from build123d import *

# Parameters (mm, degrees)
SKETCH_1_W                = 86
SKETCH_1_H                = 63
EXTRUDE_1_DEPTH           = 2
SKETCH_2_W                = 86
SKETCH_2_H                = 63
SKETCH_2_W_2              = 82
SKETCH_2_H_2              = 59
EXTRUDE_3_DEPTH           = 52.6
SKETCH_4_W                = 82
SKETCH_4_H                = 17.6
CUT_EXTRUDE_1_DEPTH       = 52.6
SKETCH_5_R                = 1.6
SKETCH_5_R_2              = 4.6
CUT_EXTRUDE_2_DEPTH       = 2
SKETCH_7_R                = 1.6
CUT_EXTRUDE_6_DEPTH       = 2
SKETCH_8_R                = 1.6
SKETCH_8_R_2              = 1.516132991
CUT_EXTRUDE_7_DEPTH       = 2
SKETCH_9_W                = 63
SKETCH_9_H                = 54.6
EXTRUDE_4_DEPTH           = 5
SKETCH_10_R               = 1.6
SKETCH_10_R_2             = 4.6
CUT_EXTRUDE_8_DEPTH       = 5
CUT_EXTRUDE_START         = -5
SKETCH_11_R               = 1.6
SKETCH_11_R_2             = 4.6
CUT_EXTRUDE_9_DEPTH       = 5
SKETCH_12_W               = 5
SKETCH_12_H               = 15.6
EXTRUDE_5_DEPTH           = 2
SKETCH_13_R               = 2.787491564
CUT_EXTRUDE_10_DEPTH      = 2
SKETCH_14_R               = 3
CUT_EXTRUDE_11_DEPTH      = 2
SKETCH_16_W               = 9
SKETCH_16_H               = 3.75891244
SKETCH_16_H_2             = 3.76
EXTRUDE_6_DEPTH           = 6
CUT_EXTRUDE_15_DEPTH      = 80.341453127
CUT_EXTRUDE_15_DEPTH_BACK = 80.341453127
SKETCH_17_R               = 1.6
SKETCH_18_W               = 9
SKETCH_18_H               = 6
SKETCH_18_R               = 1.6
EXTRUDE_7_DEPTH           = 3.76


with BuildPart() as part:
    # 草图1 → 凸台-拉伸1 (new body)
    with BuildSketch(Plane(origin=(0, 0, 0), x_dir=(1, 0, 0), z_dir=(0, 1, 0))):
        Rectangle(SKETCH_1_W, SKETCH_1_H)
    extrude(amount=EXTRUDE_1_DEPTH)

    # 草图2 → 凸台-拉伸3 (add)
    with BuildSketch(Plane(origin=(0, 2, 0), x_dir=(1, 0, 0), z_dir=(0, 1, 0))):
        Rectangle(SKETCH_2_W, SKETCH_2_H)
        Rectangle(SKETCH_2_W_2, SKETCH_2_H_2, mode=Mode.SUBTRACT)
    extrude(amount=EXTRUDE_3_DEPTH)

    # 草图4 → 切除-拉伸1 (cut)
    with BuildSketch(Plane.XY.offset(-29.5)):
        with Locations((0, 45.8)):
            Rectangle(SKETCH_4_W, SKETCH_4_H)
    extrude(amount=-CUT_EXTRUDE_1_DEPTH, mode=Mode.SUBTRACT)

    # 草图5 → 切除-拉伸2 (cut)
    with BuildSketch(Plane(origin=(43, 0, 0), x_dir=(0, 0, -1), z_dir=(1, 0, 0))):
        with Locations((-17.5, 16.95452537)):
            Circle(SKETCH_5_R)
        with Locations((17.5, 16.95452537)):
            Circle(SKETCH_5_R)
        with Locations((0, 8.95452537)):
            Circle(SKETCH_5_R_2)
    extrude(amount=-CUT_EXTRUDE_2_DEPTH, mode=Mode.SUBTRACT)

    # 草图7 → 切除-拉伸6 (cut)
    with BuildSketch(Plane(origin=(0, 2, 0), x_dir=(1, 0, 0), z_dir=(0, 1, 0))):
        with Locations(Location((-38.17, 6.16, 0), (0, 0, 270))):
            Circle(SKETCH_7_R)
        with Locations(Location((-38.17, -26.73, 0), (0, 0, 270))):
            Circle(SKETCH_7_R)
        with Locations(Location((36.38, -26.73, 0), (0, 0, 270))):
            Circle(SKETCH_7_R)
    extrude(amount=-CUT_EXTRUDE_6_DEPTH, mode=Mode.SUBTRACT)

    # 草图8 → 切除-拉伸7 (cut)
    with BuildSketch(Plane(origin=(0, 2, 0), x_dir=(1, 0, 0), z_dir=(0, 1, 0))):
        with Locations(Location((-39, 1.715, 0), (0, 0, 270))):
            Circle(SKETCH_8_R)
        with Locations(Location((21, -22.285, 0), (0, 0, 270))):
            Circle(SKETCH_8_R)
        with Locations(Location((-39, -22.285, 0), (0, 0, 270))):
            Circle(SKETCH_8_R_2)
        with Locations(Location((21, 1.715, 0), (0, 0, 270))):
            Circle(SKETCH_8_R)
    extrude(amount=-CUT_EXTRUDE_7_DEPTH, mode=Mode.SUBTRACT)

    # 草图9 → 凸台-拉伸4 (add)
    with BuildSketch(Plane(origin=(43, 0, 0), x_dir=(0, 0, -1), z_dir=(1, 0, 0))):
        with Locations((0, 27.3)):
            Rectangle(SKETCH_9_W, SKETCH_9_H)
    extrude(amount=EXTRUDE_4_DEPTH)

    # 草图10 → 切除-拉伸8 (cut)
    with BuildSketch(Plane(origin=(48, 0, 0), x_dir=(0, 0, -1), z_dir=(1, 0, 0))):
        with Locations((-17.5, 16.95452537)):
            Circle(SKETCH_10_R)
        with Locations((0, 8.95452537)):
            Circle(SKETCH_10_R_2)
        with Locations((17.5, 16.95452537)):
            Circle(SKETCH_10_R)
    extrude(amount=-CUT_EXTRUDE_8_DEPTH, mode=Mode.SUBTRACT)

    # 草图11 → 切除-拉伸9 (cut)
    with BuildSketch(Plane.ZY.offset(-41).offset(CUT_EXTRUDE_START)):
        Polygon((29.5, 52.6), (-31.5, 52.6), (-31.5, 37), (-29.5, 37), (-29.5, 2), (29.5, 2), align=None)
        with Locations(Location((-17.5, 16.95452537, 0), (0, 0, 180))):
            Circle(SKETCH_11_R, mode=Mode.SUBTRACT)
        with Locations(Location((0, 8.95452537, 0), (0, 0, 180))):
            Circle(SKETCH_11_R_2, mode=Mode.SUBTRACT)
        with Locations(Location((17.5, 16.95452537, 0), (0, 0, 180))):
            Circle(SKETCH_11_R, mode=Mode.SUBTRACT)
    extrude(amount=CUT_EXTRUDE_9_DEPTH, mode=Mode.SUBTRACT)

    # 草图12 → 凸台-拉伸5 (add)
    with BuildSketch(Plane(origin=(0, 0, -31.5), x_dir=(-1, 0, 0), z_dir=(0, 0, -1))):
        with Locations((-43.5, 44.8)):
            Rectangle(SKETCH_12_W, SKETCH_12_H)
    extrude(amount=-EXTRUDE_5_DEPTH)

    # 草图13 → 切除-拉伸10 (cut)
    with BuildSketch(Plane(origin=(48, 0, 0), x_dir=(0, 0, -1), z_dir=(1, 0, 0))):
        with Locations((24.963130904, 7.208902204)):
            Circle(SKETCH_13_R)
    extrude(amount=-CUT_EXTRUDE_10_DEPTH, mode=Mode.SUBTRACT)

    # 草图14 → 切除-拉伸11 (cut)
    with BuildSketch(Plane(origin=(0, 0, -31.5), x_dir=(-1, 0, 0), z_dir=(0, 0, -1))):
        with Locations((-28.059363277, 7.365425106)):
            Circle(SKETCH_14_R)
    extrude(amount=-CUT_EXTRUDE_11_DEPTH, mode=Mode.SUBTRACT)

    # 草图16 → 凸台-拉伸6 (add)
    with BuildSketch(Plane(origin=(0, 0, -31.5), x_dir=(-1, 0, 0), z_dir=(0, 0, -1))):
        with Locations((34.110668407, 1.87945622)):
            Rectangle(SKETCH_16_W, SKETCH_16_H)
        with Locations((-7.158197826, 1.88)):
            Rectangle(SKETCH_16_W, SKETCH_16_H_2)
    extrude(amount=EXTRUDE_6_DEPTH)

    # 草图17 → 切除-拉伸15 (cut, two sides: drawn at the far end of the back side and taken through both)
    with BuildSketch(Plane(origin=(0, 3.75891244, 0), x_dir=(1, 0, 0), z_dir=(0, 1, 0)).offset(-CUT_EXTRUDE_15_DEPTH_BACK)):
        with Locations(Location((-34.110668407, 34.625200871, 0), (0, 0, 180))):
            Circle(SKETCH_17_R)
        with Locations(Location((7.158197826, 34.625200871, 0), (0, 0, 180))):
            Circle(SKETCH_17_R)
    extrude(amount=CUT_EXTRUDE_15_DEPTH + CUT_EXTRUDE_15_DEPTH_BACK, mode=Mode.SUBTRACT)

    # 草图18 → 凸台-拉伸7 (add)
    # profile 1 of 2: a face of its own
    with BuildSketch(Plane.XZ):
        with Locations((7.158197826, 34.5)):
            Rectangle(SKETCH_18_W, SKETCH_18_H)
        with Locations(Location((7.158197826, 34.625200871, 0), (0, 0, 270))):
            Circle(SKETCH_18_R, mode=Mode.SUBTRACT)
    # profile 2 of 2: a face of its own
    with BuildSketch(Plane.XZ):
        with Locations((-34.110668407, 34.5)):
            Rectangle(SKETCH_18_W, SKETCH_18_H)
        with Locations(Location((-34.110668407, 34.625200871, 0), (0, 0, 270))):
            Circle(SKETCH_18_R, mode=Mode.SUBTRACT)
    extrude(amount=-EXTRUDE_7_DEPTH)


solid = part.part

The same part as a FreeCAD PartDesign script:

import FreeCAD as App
import Part
import Sketcher

doc = App.newDocument("Part")
params = doc.addObject("Spreadsheet::Sheet", "Params")
for row, (alias, value) in enumerate([
    ("sketch1_width", "86 mm"),
    ("sketch1_height", "63 mm"),
    ("pad1_length", "2 mm"),
    ("sketch2_width", "86 mm"),
    ("sketch2_width2", "82 mm"),
    ("sketch2_height", "63 mm"),
    ("sketch2_height2", "59 mm"),
    ("pad2_length", "52.6 mm"),
    ("sketch3_width", "82 mm"),
    ("sketch3_height", "17.6 mm"),
    ("pocket1_length", "52.6 mm"),
    ("sketch4_diameter", "3.2 mm"),
    ("sketch4_diameter2", "9.2 mm"),
    ("pocket2_length", "2 mm"),
    ("sketch5_diameter", "3.2 mm"),
    ("pocket3_length", "2 mm"),
    ("sketch6_diameter", "3.2 mm"),
    ("pocket4_length", "2 mm"),
    ("sketch7_height", "63 mm"),
    ("sketch7_width", "54.6 mm"),
    ("pad3_length", "5 mm"),
    ("sketch8_diameter", "3.2 mm"),
    ("sketch8_diameter2", "9.2 mm"),
    ("pocket5_length", "5 mm"),
    ("sketch9_diameter", "9.2 mm"),
    ("sketch9_diameter2", "3.2 mm"),
    ("sketch9_width", "35 mm"),
    ("sketch9_height", "61 mm"),
    ("sketch9_height2", "2 mm"),
    ("pocket6_length", "5 mm"),
    ("sketch10_width", "5 mm"),
    ("sketch10_height", "15.6 mm"),
    ("pad4_length", "2 mm"),
    ("pocket7_length", "2 mm"),
    ("sketch12_diameter", "6 mm"),
    ("pocket8_length", "2 mm"),
    ("sketch13_width", "9 mm"),
    ("sketch13_height", "3.76 mm"),
    ("pad5_length", "6 mm"),
    ("sketch14_diameter", "3.2 mm"),
    ("sketch15_diameter", "3.2 mm"),
    ("sketch15_width", "9 mm"),
    ("sketch15_height", "6 mm"),
    ("pad6_length", "3.76 mm"),
], start=1):
    params.set(f"A{row}", alias)
    params.set(f"B{row}", "=" + value)
    params.setAlias(f"B{row}", alias)

body = doc.addObject("PartDesign::Body", "Body")

# Sketch on XZ plane
sketch1 = body.newObject("Sketcher::SketchObject", "Sketch")
sketch1.AttachmentSupport = (doc.getObject("XZ_Plane"), [""])
sketch1.MapMode = "FlatFace"
sketch1.addGeometry(Part.LineSegment(App.Vector(-43, -32, 0), App.Vector(-43, 32, 0)), False)
sketch1.addGeometry(Part.LineSegment(App.Vector(-43, 32, 0), App.Vector(43, 32, 0)), False)
sketch1.addGeometry(Part.LineSegment(App.Vector(43, 32, 0), App.Vector(43, -32, 0)), False)
sketch1.addGeometry(Part.LineSegment(App.Vector(43, -32, 0), App.Vector(-43, -32, 0)), False)
sketch1.addConstraint(Sketcher.Constraint("Coincident", 0, 2, 1, 1))
sketch1.addConstraint(Sketcher.Constraint("Coincident", 1, 2, 2, 1))
sketch1.addConstraint(Sketcher.Constraint("Coincident", 2, 2, 3, 1))
sketch1.addConstraint(Sketcher.Constraint("Coincident", 3, 2, 0, 1))
sketch1.addConstraint(Sketcher.Constraint("Vertical", 0))
sketch1.addConstraint(Sketcher.Constraint("Horizontal", 1))
sketch1.addConstraint(Sketcher.Constraint("Vertical", 2))
sketch1.addConstraint(Sketcher.Constraint("Horizontal", 3))
sketch1.addConstraint(Sketcher.Constraint("Symmetric", 0, 2, 2, 2, -1, 1))
sketch1.addConstraint(Sketcher.Constraint("DistanceX", 1, 1, 1, 2, 86.0))
sketch1.addConstraint(Sketcher.Constraint("DistanceY", 0, 1, 0, 2, 63.0))
sketch1.setExpression("Constraints[9]", "Params.sketch1_width")
sketch1.setExpression("Constraints[10]", "Params.sketch1_height")
pad1 = body.newObject("PartDesign::Pad", "Pad")
pad1.Profile = sketch1
pad1.setExpression("Length", "Params.pad1_length")
pad1.Reversed = True

# Sketch on XZ plane
sketch2 = body.newObject("Sketcher::SketchObject", "Sketch001")
sketch2.AttachmentSupport = (doc.getObject("XZ_Plane"), [""])
sketch2.MapMode = "FlatFace"
sketch2.AttachmentOffset = App.Placement(App.Vector(0, 0, -2), App.Rotation())
sketch2.addGeometry(Part.LineSegment(App.Vector(-43, -32, 0), App.Vector(-43, 32, 0)), False)
sketch2.addGeometry(Part.LineSegment(App.Vector(-43, 32, 0), App.Vector(43, 32, 0)), False)
sketch2.addGeometry(Part.LineSegment(App.Vector(43, 32, 0), App.Vector(43, -32, 0)), False)
sketch2.addGeometry(Part.LineSegment(App.Vector(43, -32, 0), App.Vector(-43, -32, 0)), False)
sketch2.addGeometry(Part.LineSegment(App.Vector(41, 30, 0), App.Vector(-41, 30, 0)), False)
sketch2.addGeometry(Part.LineSegment(App.Vector(-41, 30, 0), App.Vector(-41, -30, 0)), False)
sketch2.addGeometry(Part.LineSegment(App.Vector(-41, -30, 0), App.Vector(41, -30, 0)), False)
sketch2.addGeometry(Part.LineSegment(App.Vector(41, -30, 0), App.Vector(41, 30, 0)), False)
sketch2.addConstraint(Sketcher.Constraint("Coincident", 0, 2, 1, 1))
sketch2.addConstraint(Sketcher.Constraint("Coincident", 1, 2, 2, 1))
sketch2.addConstraint(Sketcher.Constraint("Coincident", 2, 2, 3, 1))
sketch2.addConstraint(Sketcher.Constraint("Coincident", 3, 2, 0, 1))
sketch2.addConstraint(Sketcher.Constraint("Coincident", 4, 2, 5, 1))
sketch2.addConstraint(Sketcher.Constraint("Coincident", 5, 2, 6, 1))
sketch2.addConstraint(Sketcher.Constraint("Coincident", 6, 2, 7, 1))
sketch2.addConstraint(Sketcher.Constraint("Coincident", 7, 2, 4, 1))
sketch2.addConstraint(Sketcher.Constraint("Vertical", 0))
sketch2.addConstraint(Sketcher.Constraint("Horizontal", 1))
sketch2.addConstraint(Sketcher.Constraint("Vertical", 2))
sketch2.addConstraint(Sketcher.Constraint("Horizontal", 3))
sketch2.addConstraint(Sketcher.Constraint("Horizontal", 4))
sketch2.addConstraint(Sketcher.Constraint("Vertical", 5))
sketch2.addConstraint(Sketcher.Constraint("Horizontal", 6))
sketch2.addConstraint(Sketcher.Constraint("Vertical", 7))
sketch2.addConstraint(Sketcher.Constraint("Symmetric", 0, 2, 2, 2, -1, 1))
sketch2.addConstraint(Sketcher.Constraint("Symmetric", 4, 2, 6, 2, -1, 1))
sketch2.addConstraint(Sketcher.Constraint("DistanceX", 1, 1, 1, 2, 86.0))
sketch2.addConstraint(Sketcher.Constraint("DistanceX", 4, 2, 4, 1, 82.0))
sketch2.addConstraint(Sketcher.Constraint("DistanceY", 0, 1, 0, 2, 63.0))
sketch2.addConstraint(Sketcher.Constraint("DistanceY", 5, 2, 5, 1, 59.0))
sketch2.setExpression("Constraints[18]", "Params.sketch2_width")
sketch2.setExpression("Constraints[19]", "Params.sketch2_width2")
sketch2.setExpression("Constraints[20]", "Params.sketch2_height")
sketch2.setExpression("Constraints[21]", "Params.sketch2_height2")
pad2 = body.newObject("PartDesign::Pad", "Pad001")
pad2.Profile = sketch2
pad2.setExpression("Length", "Params.pad2_length")
pad2.Reversed = True

# Sketch on XY plane
sketch3 = body.newObject("Sketcher::SketchObject", "Sketch002")
sketch3.AttachmentSupport = (doc.getObject("XY_Plane"), [""])
sketch3.MapMode = "FlatFace"
sketch3.AttachmentOffset = App.Placement(App.Vector(0, 0, -29.5), App.Rotation())
sketch3.addGeometry(Part.LineSegment(App.Vector(-41, 55, 0), App.Vector(-41, 37, 0)), False)
sketch3.addGeometry(Part.LineSegment(App.Vector(-41, 37, 0), App.Vector(41, 37, 0)), False)
sketch3.addGeometry(Part.LineSegment(App.Vector(41, 37, 0), App.Vector(41, 55, 0)), False)
sketch3.addGeometry(Part.LineSegment(App.Vector(41, 55, 0), App.Vector(-41, 55, 0)), False)
sketch3.addConstraint(Sketcher.Constraint("Coincident", 0, 2, 1, 1))
sketch3.addConstraint(Sketcher.Constraint("Coincident", 1, 2, 2, 1))
sketch3.addConstraint(Sketcher.Constraint("Coincident", 2, 2, 3, 1))
sketch3.addConstraint(Sketcher.Constraint("Coincident", 3, 2, 0, 1))
sketch3.addConstraint(Sketcher.Constraint("Vertical", 0))
sketch3.addConstraint(Sketcher.Constraint("Horizontal", 1))
sketch3.addConstraint(Sketcher.Constraint("Vertical", 2))
sketch3.addConstraint(Sketcher.Constraint("Horizontal", 3))
sketch3.addConstraint(Sketcher.Constraint("DistanceX", 1, 1, 1, 2, 82.0))
sketch3.addConstraint(Sketcher.Constraint("DistanceY", 0, 2, 0, 1, 17.6))
sketch3.addConstraint(Sketcher.Constraint("DistanceX", 0, 2, -1, 1, 41.0))
sketch3.addConstraint(Sketcher.Constraint("DistanceY", -1, 1, 0, 2, 37.0))
sketch3.setExpression("Constraints[8]", "Params.sketch3_width")
sketch3.setExpression("Constraints[9]", "Params.sketch3_height")
pocket1 = body.newObject("PartDesign::Pocket", "Pocket")
pocket1.Profile = sketch3
pocket1.setExpression("Length", "Params.pocket1_length")

# Sketch on YZ plane
sketch4 = body.newObject("Sketcher::SketchObject", "Sketch003")
sketch4.AttachmentSupport = (doc.getObject("YZ_Plane"), [""])
sketch4.MapMode = "FlatFace"
sketch4.AttachmentOffset = App.Placement(App.Vector(0, 0, 43), App.Rotation())
sketch4.addGeometry(Part.Circle(App.Vector(17, 17.5, 0), App.Vector(0, 0, 1), 1.6), False)
sketch4.addGeometry(Part.Circle(App.Vector(17, -17.5, 0), App.Vector(0, 0, 1), 1.6), False)
sketch4.addGeometry(Part.Circle(App.Vector(9, 0, 0), App.Vector(0, 0, 1), 4.6), False)
sketch4.addConstraint(Sketcher.Constraint("Equal", 0, 1))
sketch4.addConstraint(Sketcher.Constraint("Symmetric", 0, 3, 1, 3, -1))
sketch4.addConstraint(Sketcher.Constraint("PointOnObject", 2, 3, -1))
sketch4.addConstraint(Sketcher.Constraint("Diameter", 0, 3.2))
sketch4.addConstraint(Sketcher.Constraint("Diameter", 2, 9.2))
sketch4.addConstraint(Sketcher.Constraint("DistanceY", 1, 3, 0, 3, 35.0))
sketch4.addConstraint(Sketcher.Constraint("DistanceX", 2, 3, 0, 3, 8.0))
sketch4.addConstraint(Sketcher.Constraint("DistanceX", -1, 1, 0, 3, 16.954525))
sketch4.setExpression("Constraints[3]", "Params.sketch4_diameter")
sketch4.setExpression("Constraints[4]", "Params.sketch4_diameter2")
pocket2 = body.newObject("PartDesign::Pocket", "Pocket001")
pocket2.Profile = sketch4
pocket2.setExpression("Length", "Params.pocket2_length")

# Sketch on XZ plane
sketch5 = body.newObject("Sketcher::SketchObject", "Sketch004")
sketch5.AttachmentSupport = (doc.getObject("XZ_Plane"), [""])
sketch5.MapMode = "FlatFace"
sketch5.AttachmentOffset = App.Placement(App.Vector(0, 0, -2), App.Rotation())
sketch5.addGeometry(Part.Circle(App.Vector(-38.2, -6.2, 0), App.Vector(0, 0, 1), 1.6), False)
sketch5.addGeometry(Part.Circle(App.Vector(-38.2, 26.7, 0), App.Vector(0, 0, 1), 1.6), False)
sketch5.addGeometry(Part.Circle(App.Vector(36.4, 26.7, 0), App.Vector(0, 0, 1), 1.6), False)
sketch5.addConstraint(Sketcher.Constraint("Equal", 0, 1))
sketch5.addConstraint(Sketcher.Constraint("Equal", 1, 2))
sketch5.addConstraint(Sketcher.Constraint("Horizontal", 1, 3, 2, 3))
sketch5.addConstraint(Sketcher.Constraint("Vertical", 0, 3, 1, 3))
sketch5.addConstraint(Sketcher.Constraint("Diameter", 0, 3.2))
sketch5.addConstraint(Sketcher.Constraint("DistanceX", 0, 3, -1, 1, 38.17))
sketch5.addConstraint(Sketcher.Constraint("DistanceY", 0, 3, -1, 1, 6.16))
sketch5.addConstraint(Sketcher.Constraint("DistanceY", -1, 1, 1, 3, 26.73))
sketch5.addConstraint(Sketcher.Constraint("DistanceX", -1, 1, 2, 3, 36.38))
sketch5.setExpression("Constraints[4]", "Params.sketch5_diameter")
pocket3 = body.newObject("PartDesign::Pocket", "Pocket002")
pocket3.Profile = sketch5
pocket3.setExpression("Length", "Params.pocket3_length")
pocket3.Reversed = True

# Sketch on XZ plane
sketch6 = body.newObject("Sketcher::SketchObject", "Sketch005")
sketch6.AttachmentSupport = (doc.getObject("XZ_Plane"), [""])
sketch6.MapMode = "FlatFace"
sketch6.AttachmentOffset = App.Placement(App.Vector(0, 0, -2), App.Rotation())
sketch6.addGeometry(Part.Circle(App.Vector(-39, -1.7, 0), App.Vector(0, 0, 1), 1.6), False)
sketch6.addGeometry(Part.Circle(App.Vector(21, 22.3, 0), App.Vector(0, 0, 1), 1.6), False)
sketch6.addGeometry(Part.Circle(App.Vector(-39, 22.3, 0), App.Vector(0, 0, 1), 1.5), False)
sketch6.addGeometry(Part.Circle(App.Vector(21, -1.7, 0), App.Vector(0, 0, 1), 1.6), False)
sketch6.addConstraint(Sketcher.Constraint("Equal", 0, 1))
sketch6.addConstraint(Sketcher.Constraint("Equal", 1, 3))
sketch6.addConstraint(Sketcher.Constraint("Horizontal", 1, 3, 2, 3))
sketch6.addConstraint(Sketcher.Constraint("Horizontal", 0, 3, 3, 3))
sketch6.addConstraint(Sketcher.Constraint("Vertical", 0, 3, 2, 3))
sketch6.addConstraint(Sketcher.Constraint("Vertical", 1, 3, 3, 3))
sketch6.addConstraint(Sketcher.Constraint("Diameter", 0, 3.2))
sketch6.addConstraint(Sketcher.Constraint("DistanceX", 0, 3, -1, 1, 39.0))
sketch6.addConstraint(Sketcher.Constraint("DistanceX", -1, 1, 1, 3, 21.0))
sketch6.addConstraint(Sketcher.Constraint("DistanceY", 0, 3, 1, 3, 24.0))
sketch6.addConstraint(Sketcher.Constraint("Diameter", 2, 3.032266))
sketch6.addConstraint(Sketcher.Constraint("DistanceY", 0, 3, -1, 1, 1.715))
sketch6.setExpression("Constraints[6]", "Params.sketch6_diameter")
pocket4 = body.newObject("PartDesign::Pocket", "Pocket003")
pocket4.Profile = sketch6
pocket4.setExpression("Length", "Params.pocket4_length")
pocket4.Reversed = True

# Sketch on YZ plane
sketch7 = body.newObject("Sketcher::SketchObject", "Sketch006")
sketch7.AttachmentSupport = (doc.getObject("YZ_Plane"), [""])
sketch7.MapMode = "FlatFace"
sketch7.AttachmentOffset = App.Placement(App.Vector(0, 0, 43), App.Rotation())
sketch7.addGeometry(Part.LineSegment(App.Vector(55, 32, 0), App.Vector(0, 32, 0)), False)
sketch7.addGeometry(Part.LineSegment(App.Vector(0, 32, 0), App.Vector(0, -32, 0)), False)
sketch7.addGeometry(Part.LineSegment(App.Vector(0, -32, 0), App.Vector(55, -32, 0)), False)
sketch7.addGeometry(Part.LineSegment(App.Vector(55, -32, 0), App.Vector(55, 32, 0)), False)
sketch7.addConstraint(Sketcher.Constraint("Coincident", 0, 2, 1, 1))
sketch7.addConstraint(Sketcher.Constraint("Coincident", 1, 2, 2, 1))
sketch7.addConstraint(Sketcher.Constraint("Coincident", 2, 2, 3, 1))
sketch7.addConstraint(Sketcher.Constraint("Coincident", 3, 2, 0, 1))
sketch7.addConstraint(Sketcher.Constraint("Horizontal", 0))
sketch7.addConstraint(Sketcher.Constraint("Vertical", 1))
sketch7.addConstraint(Sketcher.Constraint("Horizontal", 2))
sketch7.addConstraint(Sketcher.Constraint("Vertical", 3))
sketch7.addConstraint(Sketcher.Constraint("Symmetric", 0, 2, 1, 2, -1, 1))
sketch7.addConstraint(Sketcher.Constraint("DistanceY", 1, 2, 1, 1, 63.0))
sketch7.addConstraint(Sketcher.Constraint("DistanceX", 0, 2, 0, 1, 54.6))
sketch7.setExpression("Constraints[9]", "Params.sketch7_height")
sketch7.setExpression("Constraints[10]", "Params.sketch7_width")
pad3 = body.newObject("PartDesign::Pad", "Pad002")
pad3.Profile = sketch7
pad3.setExpression("Length", "Params.pad3_length")

# Sketch on YZ plane
sketch8 = body.newObject("Sketcher::SketchObject", "Sketch007")
sketch8.AttachmentSupport = (doc.getObject("YZ_Plane"), [""])
sketch8.MapMode = "FlatFace"
sketch8.AttachmentOffset = App.Placement(App.Vector(0, 0, 48), App.Rotation())
sketch8.addGeometry(Part.Circle(App.Vector(17, 17.5, 0), App.Vector(0, 0, 1), 1.6), False)
sketch8.addGeometry(Part.Circle(App.Vector(9, 0, 0), App.Vector(0, 0, 1), 4.6), False)
sketch8.addGeometry(Part.Circle(App.Vector(17, -17.5, 0), App.Vector(0, 0, 1), 1.6), False)
sketch8.addConstraint(Sketcher.Constraint("Equal", 0, 2))
sketch8.addConstraint(Sketcher.Constraint("Symmetric", 0, 3, 2, 3, -1))
sketch8.addConstraint(Sketcher.Constraint("PointOnObject", 1, 3, -1))
sketch8.addConstraint(Sketcher.Constraint("Diameter", 0, 3.2))
sketch8.addConstraint(Sketcher.Constraint("Diameter", 1, 9.2))
sketch8.addConstraint(Sketcher.Constraint("DistanceX", 1, 3, 0, 3, 8.0))
sketch8.addConstraint(Sketcher.Constraint("DistanceY", 2, 3, 0, 3, 35.0))
sketch8.addConstraint(Sketcher.Constraint("DistanceX", -1, 1, 0, 3, 16.954525))
sketch8.setExpression("Constraints[3]", "Params.sketch8_diameter")
sketch8.setExpression("Constraints[4]", "Params.sketch8_diameter2")
pocket5 = body.newObject("PartDesign::Pocket", "Pocket004")
pocket5.Profile = sketch8
pocket5.setExpression("Length", "Params.pocket5_length")

# Sketch on YZ plane
sketch9 = body.newObject("Sketcher::SketchObject", "Sketch008")
sketch9.AttachmentSupport = (doc.getObject("YZ_Plane"), [""])
sketch9.MapMode = "FlatFace"
sketch9.AttachmentOffset = App.Placement(App.Vector(0, 0, 46), App.Rotation())
sketch9.addGeometry(Part.LineSegment(App.Vector(52.6, 29.5, 0), App.Vector(52.6, -31.5, 0)), False)
sketch9.addGeometry(Part.LineSegment(App.Vector(52.6, -31.5, 0), App.Vector(37, -31.5, 0)), False)
sketch9.addGeometry(Part.LineSegment(App.Vector(37, -31.5, 0), App.Vector(37, -29.5, 0)), False)
sketch9.addGeometry(Part.LineSegment(App.Vector(37, -29.5, 0), App.Vector(2, -29.5, 0)), False)
sketch9.addGeometry(Part.LineSegment(App.Vector(2, -29.5, 0), App.Vector(2, 29.5, 0)), False)
sketch9.addGeometry(Part.LineSegment(App.Vector(2, 29.5, 0), App.Vector(52.6, 29.5, 0)), False)
sketch9.addGeometry(Part.Circle(App.Vector(9, 0, 0), App.Vector(0, 0, 1), 4.6), False)
sketch9.addGeometry(Part.Circle(App.Vector(17, -17.5, 0), App.Vector(0, 0, 1), 1.6), False)
sketch9.addGeometry(Part.Circle(App.Vector(17, 17.5, 0), App.Vector(0, 0, 1), 1.6), False)
sketch9.addConstraint(Sketcher.Constraint("Coincident", 0, 2, 1, 1))
sketch9.addConstraint(Sketcher.Constraint("Coincident", 1, 2, 2, 1))
sketch9.addConstraint(Sketcher.Constraint("Coincident", 2, 2, 3, 1))
sketch9.addConstraint(Sketcher.Constraint("Coincident", 3, 2, 4, 1))
sketch9.addConstraint(Sketcher.Constraint("Coincident", 4, 2, 5, 1))
sketch9.addConstraint(Sketcher.Constraint("Coincident", 5, 2, 0, 1))
sketch9.addConstraint(Sketcher.Constraint("Vertical", 0))
sketch9.addConstraint(Sketcher.Constraint("Horizontal", 1))
sketch9.addConstraint(Sketcher.Constraint("Vertical", 2))
sketch9.addConstraint(Sketcher.Constraint("Horizontal", 3))
sketch9.addConstraint(Sketcher.Constraint("Vertical", 4))
sketch9.addConstraint(Sketcher.Constraint("Horizontal", 5))
sketch9.addConstraint(Sketcher.Constraint("Equal", 7, 8))
sketch9.addConstraint(Sketcher.Constraint("Symmetric", 7, 3, 8, 3, -1))
sketch9.addConstraint(Sketcher.Constraint("PointOnObject", 6, 3, -1))
sketch9.addConstraint(Sketcher.Constraint("Diameter", 6, 9.2))
sketch9.addConstraint(Sketcher.Constraint("Diameter", 7, 3.2))
sketch9.addConstraint(Sketcher.Constraint("DistanceX", 3, 2, 3, 1, 35.0))
sketch9.addConstraint(Sketcher.Constraint("DistanceY", 0, 2, 0, 1, 61.0))
sketch9.addConstraint(Sketcher.Constraint("DistanceY", 2, 1, 2, 2, 2.0))
sketch9.addConstraint(Sketcher.Constraint("DistanceX", 1, 2, 1, 1, 15.6))
sketch9.addConstraint(Sketcher.Constraint("DistanceX", -1, 1, 1, 2, 37.0))
sketch9.addConstraint(Sketcher.Constraint("DistanceX", 6, 3, 7, 3, 8.0))
sketch9.addConstraint(Sketcher.Constraint("DistanceY", 7, 3, 8, 3, 35.0))
sketch9.addConstraint(Sketcher.Constraint("DistanceY", 0, 2, 7, 3, 14.0))
sketch9.addConstraint(Sketcher.Constraint("DistanceX", -1, 1, 6, 3, 8.954525))
sketch9.setExpression("Constraints[15]", "Params.sketch9_diameter")
sketch9.setExpression("Constraints[16]", "Params.sketch9_diameter2")
sketch9.setExpression("Constraints[17]", "Params.sketch9_width")
sketch9.setExpression("Constraints[18]", "Params.sketch9_height")
sketch9.setExpression("Constraints[19]", "Params.sketch9_height2")
pocket6 = body.newObject("PartDesign::Pocket", "Pocket005")
pocket6.Profile = sketch9
pocket6.setExpression("Length", "Params.pocket6_length")

# Sketch on XY plane
sketch10 = body.newObject("Sketcher::SketchObject", "Sketch009")
sketch10.AttachmentSupport = (doc.getObject("XY_Plane"), [""])
sketch10.MapMode = "FlatFace"
sketch10.AttachmentOffset = App.Placement(App.Vector(0, 0, -31.5), App.Rotation())
sketch10.addGeometry(Part.LineSegment(App.Vector(46, 53, 0), App.Vector(46, 37, 0)), False)
sketch10.addGeometry(Part.LineSegment(App.Vector(46, 37, 0), App.Vector(41, 37, 0)), False)
sketch10.addGeometry(Part.LineSegment(App.Vector(41, 37, 0), App.Vector(41, 53, 0)), False)
sketch10.addGeometry(Part.LineSegment(App.Vector(41, 53, 0), App.Vector(46, 53, 0)), False)
sketch10.addConstraint(Sketcher.Constraint("Coincident", 0, 2, 1, 1))
sketch10.addConstraint(Sketcher.Constraint("Coincident", 1, 2, 2, 1))
sketch10.addConstraint(Sketcher.Constraint("Coincident", 2, 2, 3, 1))
sketch10.addConstraint(Sketcher.Constraint("Coincident", 3, 2, 0, 1))
sketch10.addConstraint(Sketcher.Constraint("Vertical", 0))
sketch10.addConstraint(Sketcher.Constraint("Horizontal", 1))
sketch10.addConstraint(Sketcher.Constraint("Vertical", 2))
sketch10.addConstraint(Sketcher.Constraint("Horizontal", 3))
sketch10.addConstraint(Sketcher.Constraint("DistanceX", 1, 2, 1, 1, 5.0))
sketch10.addConstraint(Sketcher.Constraint("DistanceY", 0, 2, 0, 1, 15.6))
sketch10.addConstraint(Sketcher.Constraint("DistanceX", -1, 1, 0, 2, 46.0))
sketch10.addConstraint(Sketcher.Constraint("DistanceY", -1, 1, 0, 2, 37.0))
sketch10.setExpression("Constraints[8]", "Params.sketch10_width")
sketch10.setExpression("Constraints[9]", "Params.sketch10_height")
pad4 = body.newObject("PartDesign::Pad", "Pad003")
pad4.Profile = sketch10
pad4.setExpression("Length", "Params.pad4_length")

# Sketch on YZ plane
sketch11 = body.newObject("Sketcher::SketchObject", "Sketch010")
sketch11.AttachmentSupport = (doc.getObject("YZ_Plane"), [""])
sketch11.MapMode = "FlatFace"
sketch11.AttachmentOffset = App.Placement(App.Vector(0, 0, 48), App.Rotation())
sketch11.addGeometry(Part.Circle(App.Vector(7.2, -25, 0), App.Vector(0, 0, 1), 2.8), False)
sketch11.addConstraint(Sketcher.Constraint("Diameter", 0, 5.574983))
sketch11.addConstraint(Sketcher.Constraint("DistanceY", 0, 3, -1, 1, 24.963131))
sketch11.addConstraint(Sketcher.Constraint("DistanceX", -1, 1, 0, 3, 7.208902))
pocket7 = body.newObject("PartDesign::Pocket", "Pocket006")
pocket7.Profile = sketch11
pocket7.setExpression("Length", "Params.pocket7_length")

# Sketch on XY plane
sketch12 = body.newObject("Sketcher::SketchObject", "Sketch011")
sketch12.AttachmentSupport = (doc.getObject("XY_Plane"), [""])
sketch12.MapMode = "FlatFace"
sketch12.AttachmentOffset = App.Placement(App.Vector(0, 0, -31.5), App.Rotation())
sketch12.addGeometry(Part.Circle(App.Vector(28.1, 7.4, 0), App.Vector(0, 0, 1), 3), False)
sketch12.addConstraint(Sketcher.Constraint("Diameter", 0, 6.0))
sketch12.addConstraint(Sketcher.Constraint("DistanceX", -1, 1, 0, 3, 28.059363))
sketch12.addConstraint(Sketcher.Constraint("DistanceY", -1, 1, 0, 3, 7.365425))
sketch12.setExpression("Constraints[0]", "Params.sketch12_diameter")
pocket8 = body.newObject("PartDesign::Pocket", "Pocket007")
pocket8.Profile = sketch12
pocket8.setExpression("Length", "Params.pocket8_length")
pocket8.Reversed = True

# Sketch on XY plane
sketch13 = body.newObject("Sketcher::SketchObject", "Sketch012")
sketch13.AttachmentSupport = (doc.getObject("XY_Plane"), [""])
sketch13.MapMode = "FlatFace"
sketch13.AttachmentOffset = App.Placement(App.Vector(0, 0, -31.5), App.Rotation())
sketch13.addGeometry(Part.LineSegment(App.Vector(-29.6, 3.8, 0), App.Vector(-29.6, 0, 0)), False)
sketch13.addGeometry(Part.LineSegment(App.Vector(-29.6, 0, 0), App.Vector(-38.6, 0, 0)), False)
sketch13.addGeometry(Part.LineSegment(App.Vector(-38.6, 0, 0), App.Vector(-38.6, 3.8, 0)), False)
sketch13.addGeometry(Part.LineSegment(App.Vector(-38.6, 3.8, 0), App.Vector(-29.6, 3.8, 0)), False)
sketch13.addGeometry(Part.LineSegment(App.Vector(11.7, 3.8, 0), App.Vector(11.7, 0, 0)), False)
sketch13.addGeometry(Part.LineSegment(App.Vector(11.7, 0, 0), App.Vector(2.7, 0, 0)), False)
sketch13.addGeometry(Part.LineSegment(App.Vector(2.7, 0, 0), App.Vector(2.7, 3.8, 0)), False)
sketch13.addGeometry(Part.LineSegment(App.Vector(2.7, 3.8, 0), App.Vector(11.7, 3.8, 0)), False)
sketch13.addConstraint(Sketcher.Constraint("Coincident", 0, 2, 1, 1))
sketch13.addConstraint(Sketcher.Constraint("Coincident", 1, 2, 2, 1))
sketch13.addConstraint(Sketcher.Constraint("Coincident", 2, 2, 3, 1))
sketch13.addConstraint(Sketcher.Constraint("Coincident", 3, 2, 0, 1))
sketch13.addConstraint(Sketcher.Constraint("Coincident", 4, 2, 5, 1))
sketch13.addConstraint(Sketcher.Constraint("Coincident", 5, 2, 6, 1))
sketch13.addConstraint(Sketcher.Constraint("Coincident", 6, 2, 7, 1))
sketch13.addConstraint(Sketcher.Constraint("Coincident", 7, 2, 4, 1))
sketch13.addConstraint(Sketcher.Constraint("Vertical", 0))
sketch13.addConstraint(Sketcher.Constraint("Horizontal", 1))
sketch13.addConstraint(Sketcher.Constraint("Vertical", 2))
sketch13.addConstraint(Sketcher.Constraint("Horizontal", 3))
sketch13.addConstraint(Sketcher.Constraint("Vertical", 4))
sketch13.addConstraint(Sketcher.Constraint("Horizontal", 5))
sketch13.addConstraint(Sketcher.Constraint("Vertical", 6))
sketch13.addConstraint(Sketcher.Constraint("Horizontal", 7))
sketch13.addConstraint(Sketcher.Constraint("PointOnObject", 0, 2, -1))
sketch13.addConstraint(Sketcher.Constraint("PointOnObject", 4, 2, -1))
sketch13.addConstraint(Sketcher.Constraint("Equal", 3, 5))
sketch13.addConstraint(Sketcher.Constraint("DistanceX", 1, 2, 1, 1, 9.0))
sketch13.addConstraint(Sketcher.Constraint("DistanceY", 4, 2, 4, 1, 3.76))
sketch13.addConstraint(Sketcher.Constraint("DistanceY", 0, 2, 0, 1, 3.758912))
sketch13.addConstraint(Sketcher.Constraint("DistanceX", 0, 2, -1, 1, 29.610668))
sketch13.addConstraint(Sketcher.Constraint("DistanceX", -1, 1, 4, 2, 11.658198))
sketch13.setExpression("Constraints[19]", "Params.sketch13_width")
sketch13.setExpression("Constraints[20]", "Params.sketch13_height")
pad5 = body.newObject("PartDesign::Pad", "Pad004")
pad5.Profile = sketch13
pad5.setExpression("Length", "Params.pad5_length")
pad5.Reversed = True

# Sketch on XZ plane
sketch14 = body.newObject("Sketcher::SketchObject", "Sketch013")
sketch14.AttachmentSupport = (doc.getObject("XZ_Plane"), [""])
sketch14.MapMode = "FlatFace"
sketch14.AttachmentOffset = App.Placement(App.Vector(0, 0, -3.758912), App.Rotation())
sketch14.addGeometry(Part.Circle(App.Vector(-34.1, -34.6, 0), App.Vector(0, 0, 1), 1.6), False)
sketch14.addGeometry(Part.Circle(App.Vector(7.2, -34.6, 0), App.Vector(0, 0, 1), 1.6), False)
sketch14.addConstraint(Sketcher.Constraint("Equal", 0, 1))
sketch14.addConstraint(Sketcher.Constraint("Horizontal", 0, 3, 1, 3))
sketch14.addConstraint(Sketcher.Constraint("Diameter", 0, 3.2))
sketch14.addConstraint(Sketcher.Constraint("DistanceY", 0, 3, -1, 1, 34.625201))
sketch14.addConstraint(Sketcher.Constraint("DistanceX", 0, 3, -1, 1, 34.110668))
sketch14.addConstraint(Sketcher.Constraint("DistanceX", -1, 1, 1, 3, 7.158198))
sketch14.setExpression("Constraints[2]", "Params.sketch14_diameter")
pocket9 = body.newObject("PartDesign::Pocket", "Pocket008")
pocket9.Profile = sketch14
pocket9.Type = "ThroughAll"
pocket9.Midplane = True

# Sketch on XZ plane
sketch15 = body.newObject("Sketcher::SketchObject", "Sketch014")
sketch15.AttachmentSupport = (doc.getObject("XZ_Plane"), [""])
sketch15.MapMode = "FlatFace"
sketch15.addGeometry(Part.LineSegment(App.Vector(2.7, 37.5, 0), App.Vector(2.7, 31.5, 0)), False)
sketch15.addGeometry(Part.LineSegment(App.Vector(2.7, 31.5, 0), App.Vector(11.7, 31.5, 0)), False)
sketch15.addGeometry(Part.LineSegment(App.Vector(11.7, 31.5, 0), App.Vector(11.7, 37.5, 0)), False)
sketch15.addGeometry(Part.LineSegment(App.Vector(11.7, 37.5, 0), App.Vector(2.7, 37.5, 0)), False)
sketch15.addGeometry(Part.Circle(App.Vector(7.2, 34.6, 0), App.Vector(0, 0, 1), 1.6), False)
sketch15.addGeometry(Part.LineSegment(App.Vector(-38.6, 37.5, 0), App.Vector(-38.6, 31.5, 0)), False)
sketch15.addGeometry(Part.LineSegment(App.Vector(-38.6, 31.5, 0), App.Vector(-29.6, 31.5, 0)), False)
sketch15.addGeometry(Part.LineSegment(App.Vector(-29.6, 31.5, 0), App.Vector(-29.6, 37.5, 0)), False)
sketch15.addGeometry(Part.LineSegment(App.Vector(-29.6, 37.5, 0), App.Vector(-38.6, 37.5, 0)), False)
sketch15.addGeometry(Part.Circle(App.Vector(-34.1, 34.6, 0), App.Vector(0, 0, 1), 1.6), False)
sketch15.addConstraint(Sketcher.Constraint("Coincident", 0, 2, 1, 1))
sketch15.addConstraint(Sketcher.Constraint("Coincident", 1, 2, 2, 1))
sketch15.addConstraint(Sketcher.Constraint("Coincident", 2, 2, 3, 1))
sketch15.addConstraint(Sketcher.Constraint("Coincident", 3, 2, 0, 1))
sketch15.addConstraint(Sketcher.Constraint("Coincident", 5, 2, 6, 1))
sketch15.addConstraint(Sketcher.Constraint("Coincident", 6, 2, 7, 1))
sketch15.addConstraint(Sketcher.Constraint("Coincident", 7, 2, 8, 1))
sketch15.addConstraint(Sketcher.Constraint("Coincident", 8, 2, 5, 1))
sketch15.addConstraint(Sketcher.Constraint("Vertical", 0))
sketch15.addConstraint(Sketcher.Constraint("Horizontal", 1))
sketch15.addConstraint(Sketcher.Constraint("Vertical", 2))
sketch15.addConstraint(Sketcher.Constraint("Horizontal", 3))
sketch15.addConstraint(Sketcher.Constraint("Vertical", 5))
sketch15.addConstraint(Sketcher.Constraint("Horizontal", 6))
sketch15.addConstraint(Sketcher.Constraint("Vertical", 7))
sketch15.addConstraint(Sketcher.Constraint("Horizontal", 8))
sketch15.addConstraint(Sketcher.Constraint("Equal", 4, 9))
sketch15.addConstraint(Sketcher.Constraint("Horizontal", 4, 3, 9, 3))
sketch15.addConstraint(Sketcher.Constraint("Horizontal", 1, 2, 5, 2))
sketch15.addConstraint(Sketcher.Constraint("Horizontal", 3, 2, 7, 2))
sketch15.addConstraint(Sketcher.Constraint("Equal", 3, 6))
sketch15.addConstraint(Sketcher.Constraint("Diameter", 4, 3.2))
sketch15.addConstraint(Sketcher.Constraint("DistanceX", 1, 1, 1, 2, 9.0))
sketch15.addConstraint(Sketcher.Constraint("DistanceY", 0, 2, 0, 1, 6.0))
sketch15.addConstraint(Sketcher.Constraint("DistanceY", -1, 1, 0, 2, 31.5))
sketch15.addConstraint(Sketcher.Constraint("DistanceX", 0, 2, 4, 3, 4.5))
sketch15.addConstraint(Sketcher.Constraint("DistanceX", 5, 2, 9, 3, 4.5))
sketch15.addConstraint(Sketcher.Constraint("DistanceY", -1, 1, 4, 3, 34.625201))
sketch15.addConstraint(Sketcher.Constraint("DistanceX", 9, 3, -1, 1, 34.110668))
sketch15.addConstraint(Sketcher.Constraint("DistanceX", -1, 1, 4, 3, 7.158198))
sketch15.setExpression("Constraints[21]", "Params.sketch15_diameter")
sketch15.setExpression("Constraints[22]", "Params.sketch15_width")
sketch15.setExpression("Constraints[23]", "Params.sketch15_height")
pad6 = body.newObject("PartDesign::Pad", "Pad005")
pad6.Profile = sketch15
pad6.setExpression("Length", "Params.pad6_length")
pad6.Reversed = True

doc.recompute()
